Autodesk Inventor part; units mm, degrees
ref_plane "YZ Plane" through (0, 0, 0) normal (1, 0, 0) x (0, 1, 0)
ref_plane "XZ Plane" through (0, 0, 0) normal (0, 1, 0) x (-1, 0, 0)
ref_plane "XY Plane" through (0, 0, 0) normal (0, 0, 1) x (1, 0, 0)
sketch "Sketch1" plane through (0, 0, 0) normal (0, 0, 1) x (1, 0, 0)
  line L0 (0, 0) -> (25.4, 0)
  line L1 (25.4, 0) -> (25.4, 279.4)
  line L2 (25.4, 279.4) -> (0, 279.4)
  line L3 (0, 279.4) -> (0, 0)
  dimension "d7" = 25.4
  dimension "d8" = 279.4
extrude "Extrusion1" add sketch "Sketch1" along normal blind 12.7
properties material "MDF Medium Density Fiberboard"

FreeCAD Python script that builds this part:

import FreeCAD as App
import Part
import Sketcher
Q = App.Units.Quantity


def add_polygon(sketch, points):
    """Adds a closed chain of lines whose ends are joined by coincident constraints."""
    first, n = sketch.GeometryCount, len(points)
    for a, b in zip(points, points[1:] + points[:1]):
        sketch.addGeometry(Part.LineSegment(App.Vector(*a, 0), App.Vector(*b, 0)), False)
    for i in range(n):
        sketch.addConstraint(Sketcher.Constraint("Coincident", first + i, 2, first + (i + 1) % n, 1))

doc = App.newDocument("Part")
body = doc.addObject("PartDesign::Body", "Body")

# Sketch on XY plane
sketch1 = body.newObject("Sketcher::SketchObject", "Sketch")
sketch1.AttachmentSupport = (doc.getObject("XY_Plane"), [""])
sketch1.MapMode = "FlatFace"
add_polygon(sketch1, [(0, 279), (0, 0), (25, 0), (25, 279)])  # lines 0-3
sketch1.addConstraint([
    Sketcher.Constraint("Vertical", 0),
    Sketcher.Constraint("Horizontal", 1),
    Sketcher.Constraint("Vertical", 2),
    Sketcher.Constraint("Horizontal", 3),
    Sketcher.Constraint("Coincident", 0, 2, -1, 1),
    Sketcher.Constraint("DistanceX", 1, 1, 1, 2, Q("1 in")),
    Sketcher.Constraint("DistanceY", 0, 2, 0, 1, Q("11 in")),
])
pad1 = body.newObject("PartDesign::Pad", "Pad")
pad1.Profile = sketch1
pad1.Length = Q("0.5 in")

doc.recompute()
